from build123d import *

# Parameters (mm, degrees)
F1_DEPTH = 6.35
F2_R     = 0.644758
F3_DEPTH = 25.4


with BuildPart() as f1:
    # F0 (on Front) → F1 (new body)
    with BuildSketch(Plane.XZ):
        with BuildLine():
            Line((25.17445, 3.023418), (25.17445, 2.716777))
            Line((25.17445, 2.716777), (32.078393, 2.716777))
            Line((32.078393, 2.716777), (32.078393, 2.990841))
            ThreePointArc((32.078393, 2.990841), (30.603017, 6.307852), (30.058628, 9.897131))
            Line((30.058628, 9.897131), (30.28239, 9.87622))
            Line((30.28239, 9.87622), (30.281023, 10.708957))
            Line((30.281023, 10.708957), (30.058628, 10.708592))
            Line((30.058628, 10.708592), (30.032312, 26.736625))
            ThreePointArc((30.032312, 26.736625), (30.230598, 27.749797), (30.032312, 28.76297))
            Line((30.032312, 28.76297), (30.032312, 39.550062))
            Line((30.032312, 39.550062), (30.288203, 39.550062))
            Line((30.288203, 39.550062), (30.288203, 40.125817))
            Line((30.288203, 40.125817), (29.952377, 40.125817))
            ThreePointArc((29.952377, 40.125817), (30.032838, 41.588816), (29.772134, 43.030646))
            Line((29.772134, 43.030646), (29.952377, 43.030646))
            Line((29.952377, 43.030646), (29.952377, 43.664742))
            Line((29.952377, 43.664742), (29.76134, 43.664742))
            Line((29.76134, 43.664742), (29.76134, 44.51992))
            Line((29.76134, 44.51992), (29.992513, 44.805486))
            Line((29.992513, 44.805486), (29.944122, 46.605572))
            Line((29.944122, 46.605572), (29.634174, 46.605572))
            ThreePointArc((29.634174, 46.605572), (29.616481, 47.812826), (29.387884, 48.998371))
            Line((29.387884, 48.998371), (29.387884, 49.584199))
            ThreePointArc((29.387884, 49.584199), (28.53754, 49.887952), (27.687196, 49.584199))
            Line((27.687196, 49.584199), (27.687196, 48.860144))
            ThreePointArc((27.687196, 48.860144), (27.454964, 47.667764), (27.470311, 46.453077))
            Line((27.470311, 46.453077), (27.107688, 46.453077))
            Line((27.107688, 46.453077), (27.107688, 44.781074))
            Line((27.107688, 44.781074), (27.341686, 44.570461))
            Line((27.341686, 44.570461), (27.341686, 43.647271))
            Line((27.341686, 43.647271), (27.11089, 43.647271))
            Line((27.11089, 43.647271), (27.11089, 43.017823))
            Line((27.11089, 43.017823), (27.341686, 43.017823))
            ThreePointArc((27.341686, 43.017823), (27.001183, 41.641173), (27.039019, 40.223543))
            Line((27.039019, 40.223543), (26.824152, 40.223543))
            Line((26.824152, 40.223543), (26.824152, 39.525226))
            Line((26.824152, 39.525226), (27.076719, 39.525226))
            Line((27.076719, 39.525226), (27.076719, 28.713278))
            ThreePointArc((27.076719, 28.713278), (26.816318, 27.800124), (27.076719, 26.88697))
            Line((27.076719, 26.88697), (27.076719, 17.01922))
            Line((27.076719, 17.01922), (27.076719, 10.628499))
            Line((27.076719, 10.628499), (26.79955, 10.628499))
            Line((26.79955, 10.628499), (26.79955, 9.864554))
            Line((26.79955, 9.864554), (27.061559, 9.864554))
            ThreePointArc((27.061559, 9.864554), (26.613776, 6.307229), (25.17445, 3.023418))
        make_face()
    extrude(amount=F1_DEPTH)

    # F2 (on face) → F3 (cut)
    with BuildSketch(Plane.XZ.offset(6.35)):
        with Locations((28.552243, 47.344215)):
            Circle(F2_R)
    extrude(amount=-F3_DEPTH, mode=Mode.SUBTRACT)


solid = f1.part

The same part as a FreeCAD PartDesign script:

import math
import FreeCAD as App
import Part
import Sketcher
Q = App.Units.Quantity

doc = App.newDocument("Part")
body = doc.addObject("PartDesign::Body", "Body")

# Sketch on XZ plane
sketch1 = doc.addObject("Sketcher::SketchObject", "Sketch")
body.addObject(sketch1)
sketch1.AttachmentSupport = (doc.XZ_Plane, [""])
sketch1.MapMode = "FlatFace"
sketch1.addGeometry([
    Part.LineSegment(App.Vector(25.17, 3.02, 0), App.Vector(25.17, 2.72, 0)),  # 0
    Part.LineSegment(App.Vector(25.17, 2.72, 0), App.Vector(32.08, 2.72, 0)),  # 1
    Part.LineSegment(App.Vector(32.08, 2.72, 0), App.Vector(32.08, 2.99, 0)),  # 2
    Part.ArcOfCircle(Part.Circle(App.Vector(43.64, 10.12, 0), App.Vector(0, 0, 1), 13.59), math.radians(-179), math.radians(-148)),  # 3
    Part.LineSegment(App.Vector(30.06, 9.9, 0), App.Vector(30.28, 9.88, 0)),  # 4
    Part.LineSegment(App.Vector(30.28, 9.88, 0), App.Vector(30.28, 10.71, 0)),  # 5
    Part.LineSegment(App.Vector(30.28, 10.71, 0), App.Vector(30.06, 10.71, 0)),  # 6
    Part.LineSegment(App.Vector(30.06, 10.71, 0), App.Vector(30.03, 26.74, 0)),  # 7
    Part.ArcOfCircle(Part.Circle(App.Vector(27.54, 27.75, 0), App.Vector(0, 0, 1), 2.69), math.radians(-22), math.radians(22)),  # 8
    Part.LineSegment(App.Vector(30.03, 28.76, 0), App.Vector(30.03, 39.55, 0)),  # 9
    Part.LineSegment(App.Vector(30.03, 39.55, 0), App.Vector(30.29, 39.55, 0)),  # 10
    Part.LineSegment(App.Vector(30.29, 39.55, 0), App.Vector(30.29, 40.13, 0)),  # 11
    Part.LineSegment(App.Vector(30.29, 40.13, 0), App.Vector(29.95, 40.13, 0)),  # 12
    Part.ArcOfCircle(Part.Circle(App.Vector(23.76, 41.2, 0), App.Vector(0, 0, 1), 6.28), math.radians(-10), math.radians(17)),  # 13
    Part.LineSegment(App.Vector(29.77, 43.03, 0), App.Vector(29.95, 43.03, 0)),  # 14
    Part.LineSegment(App.Vector(29.95, 43.03, 0), App.Vector(29.95, 43.66, 0)),  # 15
    Part.LineSegment(App.Vector(29.95, 43.66, 0), App.Vector(29.76, 43.66, 0)),  # 16
    Part.LineSegment(App.Vector(29.76, 43.66, 0), App.Vector(29.76, 44.52, 0)),  # 17
    Part.LineSegment(App.Vector(29.76, 44.52, 0), App.Vector(29.99, 44.81, 0)),  # 18
    Part.LineSegment(App.Vector(29.99, 44.81, 0), App.Vector(29.94, 46.61, 0)),  # 19
    Part.LineSegment(App.Vector(29.94, 46.61, 0), App.Vector(29.63, 46.61, 0)),  # 20
    Part.ArcOfCircle(Part.Circle(App.Vector(22.78, 47.11, 0), App.Vector(0, 0, 1), 6.88), math.radians(-4), math.radians(16)),  # 21
    Part.LineSegment(App.Vector(29.39, 49, 0), App.Vector(29.39, 49.58, 0)),  # 22
    Part.ArcOfCircle(Part.Circle(App.Vector(28.54, 48.55, 0), App.Vector(0, 0, 1), 1.34), math.radians(51), math.radians(129)),  # 23
    Part.LineSegment(App.Vector(27.69, 49.58, 0), App.Vector(27.69, 48.86, 0)),  # 24
    Part.ArcOfCircle(Part.Circle(App.Vector(33.37, 47.14, 0), App.Vector(0, 0, 1), 5.94), math.radians(163), math.radians(187)),  # 25
    Part.LineSegment(App.Vector(27.47, 46.45, 0), App.Vector(27.11, 46.45, 0)),  # 26
    Part.LineSegment(App.Vector(27.11, 46.45, 0), App.Vector(27.11, 44.78, 0)),  # 27
    Part.LineSegment(App.Vector(27.11, 44.78, 0), App.Vector(27.34, 44.57, 0)),  # 28
    Part.LineSegment(App.Vector(27.34, 44.57, 0), App.Vector(27.34, 43.65, 0)),  # 29
    Part.LineSegment(App.Vector(27.34, 43.65, 0), App.Vector(27.11, 43.65, 0)),  # 30
    Part.LineSegment(App.Vector(27.11, 43.65, 0), App.Vector(27.11, 43.02, 0)),  # 31
    Part.LineSegment(App.Vector(27.11, 43.02, 0), App.Vector(27.34, 43.02, 0)),  # 32
    Part.ArcOfCircle(Part.Circle(App.Vector(32.26, 41.07, 0), App.Vector(0, 0, 1), 5.28), math.radians(158), math.radians(189)),  # 33
    Part.LineSegment(App.Vector(27.04, 40.22, 0), App.Vector(26.82, 40.22, 0)),  # 34
    Part.LineSegment(App.Vector(26.82, 40.22, 0), App.Vector(26.82, 39.53, 0)),  # 35
    Part.LineSegment(App.Vector(26.82, 39.53, 0), App.Vector(27.08, 39.53, 0)),  # 36
    Part.LineSegment(App.Vector(27.08, 39.53, 0), App.Vector(27.08, 28.71, 0)),  # 37
    Part.ArcOfCircle(Part.Circle(App.Vector(28.55, 27.8, 0), App.Vector(0, 0, 1), 1.73), math.radians(148), math.radians(212)),  # 38
    Part.LineSegment(App.Vector(27.08, 26.89, 0), App.Vector(27.08, 10.63, 0)),  # 39
    Part.LineSegment(App.Vector(27.08, 10.63, 0), App.Vector(26.8, 10.63, 0)),  # 40
    Part.LineSegment(App.Vector(26.8, 10.63, 0), App.Vector(26.8, 9.86, 0)),  # 41
    Part.LineSegment(App.Vector(26.8, 9.86, 0), App.Vector(27.06, 9.86, 0)),  # 42
    Part.ArcOfCircle(Part.Circle(App.Vector(14.57, 9.63, 0), App.Vector(0, 0, 1), 12.5), math.radians(-32), math.radians(1)),  # 43
], False)
sketch1.addConstraint([
    Sketcher.Constraint("Coincident", 0, 2, 1, 1),
    Sketcher.Constraint("Coincident", 1, 2, 2, 1),
    Sketcher.Constraint("Coincident", 2, 2, 3, 2),
    Sketcher.Constraint("Coincident", 3, 1, 4, 1),
    Sketcher.Constraint("Coincident", 4, 2, 5, 1),
    Sketcher.Constraint("Coincident", 5, 2, 6, 1),
    Sketcher.Constraint("Coincident", 6, 2, 7, 1),
    Sketcher.Constraint("Coincident", 7, 2, 8, 1),
    Sketcher.Constraint("Coincident", 8, 2, 9, 1),
    Sketcher.Constraint("Coincident", 9, 2, 10, 1),
    Sketcher.Constraint("Coincident", 10, 2, 11, 1),
    Sketcher.Constraint("Coincident", 11, 2, 12, 1),
    Sketcher.Constraint("Coincident", 12, 2, 13, 1),
    Sketcher.Constraint("Coincident", 13, 2, 14, 1),
    Sketcher.Constraint("Coincident", 14, 2, 15, 1),
    Sketcher.Constraint("Coincident", 15, 2, 16, 1),
    Sketcher.Constraint("Coincident", 16, 2, 17, 1),
    Sketcher.Constraint("Coincident", 17, 2, 18, 1),
    Sketcher.Constraint("Coincident", 18, 2, 19, 1),
    Sketcher.Constraint("Coincident", 19, 2, 20, 1),
    Sketcher.Constraint("Coincident", 20, 2, 21, 1),
    Sketcher.Constraint("Coincident", 21, 2, 22, 1),
    Sketcher.Constraint("Coincident", 22, 2, 23, 1),
    Sketcher.Constraint("Coincident", 23, 2, 24, 1),
    Sketcher.Constraint("Coincident", 24, 2, 25, 1),
    Sketcher.Constraint("Coincident", 25, 2, 26, 1),
    Sketcher.Constraint("Coincident", 26, 2, 27, 1),
    Sketcher.Constraint("Coincident", 27, 2, 28, 1),
    Sketcher.Constraint("Coincident", 28, 2, 29, 1),
    Sketcher.Constraint("Coincident", 29, 2, 30, 1),
    Sketcher.Constraint("Coincident", 30, 2, 31, 1),
    Sketcher.Constraint("Coincident", 31, 2, 32, 1),
    Sketcher.Constraint("Coincident", 32, 2, 33, 1),
    Sketcher.Constraint("Coincident", 33, 2, 34, 1),
    Sketcher.Constraint("Coincident", 34, 2, 35, 1),
    Sketcher.Constraint("Coincident", 35, 2, 36, 1),
    Sketcher.Constraint("Coincident", 36, 2, 37, 1),
    Sketcher.Constraint("Coincident", 37, 2, 38, 1),
    Sketcher.Constraint("Coincident", 38, 2, 39, 1),
    Sketcher.Constraint("Coincident", 39, 2, 40, 1),
    Sketcher.Constraint("Coincident", 40, 2, 41, 1),
    Sketcher.Constraint("Coincident", 41, 2, 42, 1),
    Sketcher.Constraint("Coincident", 42, 2, 43, 2),
    Sketcher.Constraint("Coincident", 43, 1, 0, 1),
    Sketcher.Constraint("Vertical", 0),
    Sketcher.Constraint("Horizontal", 1),
    Sketcher.Constraint("Vertical", 2),
    Sketcher.Constraint("Vertical", 9),
    Sketcher.Constraint("Horizontal", 10),
    Sketcher.Constraint("Vertical", 11),
    Sketcher.Constraint("Horizontal", 12),
    Sketcher.Constraint("Horizontal", 14),
    Sketcher.Constraint("Vertical", 15),
    Sketcher.Constraint("Horizontal", 16),
    Sketcher.Constraint("Vertical", 17),
    Sketcher.Constraint("Horizontal", 20),
    Sketcher.Constraint("Vertical", 22),
    Sketcher.Constraint("Vertical", 24),
    Sketcher.Constraint("Horizontal", 26),
    Sketcher.Constraint("Vertical", 27),
    Sketcher.Constraint("Vertical", 29),
    Sketcher.Constraint("Horizontal", 30),
    Sketcher.Constraint("Vertical", 31),
    Sketcher.Constraint("Horizontal", 32),
    Sketcher.Constraint("Horizontal", 34),
    Sketcher.Constraint("Vertical", 35),
    Sketcher.Constraint("Horizontal", 36),
    Sketcher.Constraint("Vertical", 37),
    Sketcher.Constraint("Vertical", 39),
    Sketcher.Constraint("Horizontal", 40),
    Sketcher.Constraint("Vertical", 41),
    Sketcher.Constraint("Horizontal", 42),
    Sketcher.Constraint("Perpendicular", 5, 6),
    Sketcher.Constraint("Perpendicular", 6, 7),
    Sketcher.Constraint("Horizontal", 22, 2, 23, 2),
    Sketcher.Constraint("Vertical", 3, 1, 6, 2),
    Sketcher.Constraint("Vertical", 7, 2, 8, 2),
    Sketcher.Constraint("Vertical", 12, 2, 14, 2),
    Sketcher.Constraint("Vertical", 29, 2, 32, 2),
    Sketcher.Constraint("Vertical", 37, 2, 38, 2),
    Sketcher.Constraint("Radius", 21, 6.875699),
    Sketcher.Constraint("Radius", 33, 5.284711),
    Sketcher.Constraint("Radius", 38, 1.731289),
    Sketcher.Constraint("Radius", 43, 12.497938),
    Sketcher.Constraint("Radius", 3, 13.587137),
    Sketcher.Constraint("Radius", 8, 2.687623),
    Sketcher.Constraint("Radius", 13, 6.280595),
    Sketcher.Constraint("Radius", 23, 1.342128),
    Sketcher.Constraint("Radius", 25, 5.936478),
    Sketcher.Constraint("DistanceX", 0, 2, 4, 2, Q("0.2011 in")),
    Sketcher.Constraint("DistanceY", 17, 2, 23, 3, Q("0.1585002 in")),
    Sketcher.Constraint("DistanceX", 10, 1, 10, 2, 0.255891),
    Sketcher.Constraint("DistanceX", 40, 2, 40, 1, 0.277169),
    Sketcher.Constraint("DistanceX", 42, 1, 42, 2, 0.262009),
    Sketcher.Constraint("DistanceY", 0, 2, 0, 1, 0.306641),
    Sketcher.Constraint("DistanceY", 9, 1, 9, 2, 10.787092),
    Sketcher.Constraint("DistanceY", 17, 1, 17, 2, 0.855178),
    Sketcher.Constraint("DistanceY", 29, 2, 29, 1, 0.92319),
    Sketcher.Constraint("DistanceY", 31, 2, 31, 1, 0.629448),
    Sketcher.Constraint("DistanceY", 37, 2, 37, 1, 10.811948),
    Sketcher.Constraint("DistanceY", 39, 2, 39, 1, 16.258471),
    Sketcher.Constraint("DistanceY", -1, 1, 3, 3, 10.121699),
    Sketcher.Constraint("DistanceX", -1, 1, 13, 3, 23.764298),
    Sketcher.Constraint("DistanceY", -1, 1, 22, 2, 49.584199),
    Sketcher.Constraint("DistanceY", -1, 1, 39, 2, 10.628499),
    Sketcher.Constraint("DistanceY", 3, 3, 8, 3, 17.628099),
    Sketcher.Constraint("DistanceY", 25, 3, 23, 3, 1.410798),
    Sketcher.Constraint("DistanceY", 38, 3, 25, 3, 19.334902),
    Sketcher.Constraint("DistanceX", 43, 3, 3, 3, 29.078099),
    Sketcher.Constraint("DistanceY", 7, 2, 38, 3, 1.063499),
    Sketcher.Constraint("DistanceX", 23, 3, 17, 2, 1.2238),
    Sketcher.Constraint("DistanceY", 20, 2, 21, 2, 2.392799),
    Sketcher.Constraint("DistanceX", 33, 2, 36, 2, 0.0377),
    Sketcher.Constraint("DistanceY", 38, 2, 8, 2, 1.876),
    Sketcher.Constraint("DistanceX", 43, 1, 41, 2, 1.6251),
    Sketcher.Constraint("Distance", 5, 0.832738),
    Sketcher.Constraint("Distance", 18, 0.367408),
    Sketcher.Constraint("DistanceX", 1, 1, 1, 2, 6.903943),
    Sketcher.Constraint("DistanceX", 12, 2, 12, 1, 0.335826),
    Sketcher.Constraint("DistanceX", 14, 1, 14, 2, 0.180243),
    Sketcher.Constraint("DistanceX", 16, 2, 16, 1, 0.191037),
    Sketcher.Constraint("DistanceX", 20, 2, 20, 1, 0.309948),
    Sketcher.Constraint("DistanceX", 26, 2, 26, 1, 0.362623),
    Sketcher.Constraint("DistanceX", 30, 2, 30, 1, 0.230796),
    Sketcher.Constraint("DistanceX", 34, 2, 34, 1, 0.214867),
    Sketcher.Constraint("DistanceY", 2, 1, 2, 2, 0.274064),
    Sketcher.Constraint("DistanceY", 11, 1, 11, 2, 0.575755),
    Sketcher.Constraint("DistanceY", 15, 1, 15, 2, 0.634096),
    Sketcher.Constraint("DistanceY", 22, 1, 22, 2, 0.585828),
    Sketcher.Constraint("DistanceY", 24, 2, 24, 1, 0.724055),
    Sketcher.Constraint("DistanceY", 27, 2, 27, 1, 1.672003),
    Sketcher.Constraint("DistanceY", 35, 2, 35, 1, 0.698317),
    Sketcher.Constraint("DistanceY", 41, 2, 41, 1, 0.763945),
    Sketcher.Constraint("DistanceX", -1, 1, 3, 3, 43.643909),
    Sketcher.Constraint("DistanceY", -1, 1, 21, 3, 47.108832),
    Sketcher.Constraint("DistanceY", -1, 1, 33, 3, 41.07208),
    Sketcher.Constraint("DistanceX", -1, 1, 3, 1, 30.058628),
    Sketcher.Constraint("DistanceY", -1, 1, 4, 2, 9.87622),
    Sketcher.Constraint("DistanceX", -1, 1, 25, 2, 27.470311),
    Sketcher.Constraint("DistanceY", -1, 1, 28, 2, 44.570461),
    Sketcher.Constraint("DistanceY", 14, 2, 18, 2, 1.77484),
])
pad1 = doc.addObject("PartDesign::Pad", "Pad")
body.addObject(pad1)
pad1.Profile = sketch1
pad1.Length = Q("0.25 in")

# Sketch on XZ plane
sketch2 = doc.addObject("Sketcher::SketchObject", "Sketch001")
body.addObject(sketch2)
sketch2.AttachmentSupport = (doc.XZ_Plane, [""])
sketch2.MapMode = "FlatFace"
sketch2.AttachmentOffset = App.Placement(App.Vector(0, 0, 0.25 * 25.4), App.Rotation())
sketch2.addGeometry(Part.Circle(App.Vector(28.6, 47.3, 0), App.Vector(0, 0, 1), 0.6), False)
sketch2.addConstraint([
    Sketcher.Constraint("Diameter", 0, 1.289516),
    Sketcher.Constraint("DistanceX", -1, 1, 0, 3, 28.552243),
    Sketcher.Constraint("DistanceY", -1, 1, 0, 3, 47.344215),
])
pocket1 = doc.addObject("PartDesign::Pocket", "Pocket")
body.addObject(pocket1)
pocket1.Profile = sketch2
pocket1.Length = Q("1 in")

doc.recompute()
